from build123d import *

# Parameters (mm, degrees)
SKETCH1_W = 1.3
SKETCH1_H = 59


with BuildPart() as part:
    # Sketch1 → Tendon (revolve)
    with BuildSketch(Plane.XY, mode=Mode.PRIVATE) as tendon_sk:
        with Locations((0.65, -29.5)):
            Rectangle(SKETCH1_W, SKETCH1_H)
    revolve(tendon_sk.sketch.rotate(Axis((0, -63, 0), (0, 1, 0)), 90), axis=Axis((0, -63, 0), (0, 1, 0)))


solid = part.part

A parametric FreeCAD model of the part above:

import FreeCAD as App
import Part
import Sketcher

V = App.Vector


def add_polygon(sketch, points):
    """Adds a closed chain of lines whose ends are joined by coincident constraints."""
    first, n = sketch.GeometryCount, len(points)
    for a, b in zip(points, points[1:] + points[:1]):
        sketch.addGeometry(Part.LineSegment(App.Vector(*a, 0), App.Vector(*b, 0)), False)
    for i in range(n):
        sketch.addConstraint(Sketcher.Constraint("Coincident", first + i, 2, first + (i + 1) % n, 1))

doc = App.newDocument("Part")
body = doc.addObject("PartDesign::Body", "Body")

# Sketch on XY plane
sketch1 = doc.addObject("Sketcher::SketchObject", "Sketch")
body.addObject(sketch1)
sketch1.AttachmentSupport = (doc.XY_Plane, [""])
sketch1.MapMode = "FlatFace"
add_polygon(sketch1, [(0, 0), (0, -59), (1.3, -59), (1.3, 0)])  # lines 0-3
sketch1.addConstraint(Sketcher.Constraint("Vertical", 0))
sketch1.addConstraint(Sketcher.Constraint("Horizontal", 1))
sketch1.addConstraint(Sketcher.Constraint("Vertical", 2))
sketch1.addConstraint(Sketcher.Constraint("Horizontal", 3))
sketch1.addConstraint(Sketcher.Constraint("Coincident", 3, 2, -1, 1))
sketch1.addConstraint(Sketcher.Constraint("DistanceY", 0, 2, 0, 1, 59.0))
sketch1.addConstraint(Sketcher.Constraint("DistanceX", 1, 1, 1, 2, 1.3))
revolution = doc.addObject("PartDesign::Revolution", "Revolution")
body.addObject(revolution)
revolution.Profile = sketch1
revolution.ReferenceAxis = (sketch1, ["V_Axis"])
revolution.Angle = 360

doc.recompute()
